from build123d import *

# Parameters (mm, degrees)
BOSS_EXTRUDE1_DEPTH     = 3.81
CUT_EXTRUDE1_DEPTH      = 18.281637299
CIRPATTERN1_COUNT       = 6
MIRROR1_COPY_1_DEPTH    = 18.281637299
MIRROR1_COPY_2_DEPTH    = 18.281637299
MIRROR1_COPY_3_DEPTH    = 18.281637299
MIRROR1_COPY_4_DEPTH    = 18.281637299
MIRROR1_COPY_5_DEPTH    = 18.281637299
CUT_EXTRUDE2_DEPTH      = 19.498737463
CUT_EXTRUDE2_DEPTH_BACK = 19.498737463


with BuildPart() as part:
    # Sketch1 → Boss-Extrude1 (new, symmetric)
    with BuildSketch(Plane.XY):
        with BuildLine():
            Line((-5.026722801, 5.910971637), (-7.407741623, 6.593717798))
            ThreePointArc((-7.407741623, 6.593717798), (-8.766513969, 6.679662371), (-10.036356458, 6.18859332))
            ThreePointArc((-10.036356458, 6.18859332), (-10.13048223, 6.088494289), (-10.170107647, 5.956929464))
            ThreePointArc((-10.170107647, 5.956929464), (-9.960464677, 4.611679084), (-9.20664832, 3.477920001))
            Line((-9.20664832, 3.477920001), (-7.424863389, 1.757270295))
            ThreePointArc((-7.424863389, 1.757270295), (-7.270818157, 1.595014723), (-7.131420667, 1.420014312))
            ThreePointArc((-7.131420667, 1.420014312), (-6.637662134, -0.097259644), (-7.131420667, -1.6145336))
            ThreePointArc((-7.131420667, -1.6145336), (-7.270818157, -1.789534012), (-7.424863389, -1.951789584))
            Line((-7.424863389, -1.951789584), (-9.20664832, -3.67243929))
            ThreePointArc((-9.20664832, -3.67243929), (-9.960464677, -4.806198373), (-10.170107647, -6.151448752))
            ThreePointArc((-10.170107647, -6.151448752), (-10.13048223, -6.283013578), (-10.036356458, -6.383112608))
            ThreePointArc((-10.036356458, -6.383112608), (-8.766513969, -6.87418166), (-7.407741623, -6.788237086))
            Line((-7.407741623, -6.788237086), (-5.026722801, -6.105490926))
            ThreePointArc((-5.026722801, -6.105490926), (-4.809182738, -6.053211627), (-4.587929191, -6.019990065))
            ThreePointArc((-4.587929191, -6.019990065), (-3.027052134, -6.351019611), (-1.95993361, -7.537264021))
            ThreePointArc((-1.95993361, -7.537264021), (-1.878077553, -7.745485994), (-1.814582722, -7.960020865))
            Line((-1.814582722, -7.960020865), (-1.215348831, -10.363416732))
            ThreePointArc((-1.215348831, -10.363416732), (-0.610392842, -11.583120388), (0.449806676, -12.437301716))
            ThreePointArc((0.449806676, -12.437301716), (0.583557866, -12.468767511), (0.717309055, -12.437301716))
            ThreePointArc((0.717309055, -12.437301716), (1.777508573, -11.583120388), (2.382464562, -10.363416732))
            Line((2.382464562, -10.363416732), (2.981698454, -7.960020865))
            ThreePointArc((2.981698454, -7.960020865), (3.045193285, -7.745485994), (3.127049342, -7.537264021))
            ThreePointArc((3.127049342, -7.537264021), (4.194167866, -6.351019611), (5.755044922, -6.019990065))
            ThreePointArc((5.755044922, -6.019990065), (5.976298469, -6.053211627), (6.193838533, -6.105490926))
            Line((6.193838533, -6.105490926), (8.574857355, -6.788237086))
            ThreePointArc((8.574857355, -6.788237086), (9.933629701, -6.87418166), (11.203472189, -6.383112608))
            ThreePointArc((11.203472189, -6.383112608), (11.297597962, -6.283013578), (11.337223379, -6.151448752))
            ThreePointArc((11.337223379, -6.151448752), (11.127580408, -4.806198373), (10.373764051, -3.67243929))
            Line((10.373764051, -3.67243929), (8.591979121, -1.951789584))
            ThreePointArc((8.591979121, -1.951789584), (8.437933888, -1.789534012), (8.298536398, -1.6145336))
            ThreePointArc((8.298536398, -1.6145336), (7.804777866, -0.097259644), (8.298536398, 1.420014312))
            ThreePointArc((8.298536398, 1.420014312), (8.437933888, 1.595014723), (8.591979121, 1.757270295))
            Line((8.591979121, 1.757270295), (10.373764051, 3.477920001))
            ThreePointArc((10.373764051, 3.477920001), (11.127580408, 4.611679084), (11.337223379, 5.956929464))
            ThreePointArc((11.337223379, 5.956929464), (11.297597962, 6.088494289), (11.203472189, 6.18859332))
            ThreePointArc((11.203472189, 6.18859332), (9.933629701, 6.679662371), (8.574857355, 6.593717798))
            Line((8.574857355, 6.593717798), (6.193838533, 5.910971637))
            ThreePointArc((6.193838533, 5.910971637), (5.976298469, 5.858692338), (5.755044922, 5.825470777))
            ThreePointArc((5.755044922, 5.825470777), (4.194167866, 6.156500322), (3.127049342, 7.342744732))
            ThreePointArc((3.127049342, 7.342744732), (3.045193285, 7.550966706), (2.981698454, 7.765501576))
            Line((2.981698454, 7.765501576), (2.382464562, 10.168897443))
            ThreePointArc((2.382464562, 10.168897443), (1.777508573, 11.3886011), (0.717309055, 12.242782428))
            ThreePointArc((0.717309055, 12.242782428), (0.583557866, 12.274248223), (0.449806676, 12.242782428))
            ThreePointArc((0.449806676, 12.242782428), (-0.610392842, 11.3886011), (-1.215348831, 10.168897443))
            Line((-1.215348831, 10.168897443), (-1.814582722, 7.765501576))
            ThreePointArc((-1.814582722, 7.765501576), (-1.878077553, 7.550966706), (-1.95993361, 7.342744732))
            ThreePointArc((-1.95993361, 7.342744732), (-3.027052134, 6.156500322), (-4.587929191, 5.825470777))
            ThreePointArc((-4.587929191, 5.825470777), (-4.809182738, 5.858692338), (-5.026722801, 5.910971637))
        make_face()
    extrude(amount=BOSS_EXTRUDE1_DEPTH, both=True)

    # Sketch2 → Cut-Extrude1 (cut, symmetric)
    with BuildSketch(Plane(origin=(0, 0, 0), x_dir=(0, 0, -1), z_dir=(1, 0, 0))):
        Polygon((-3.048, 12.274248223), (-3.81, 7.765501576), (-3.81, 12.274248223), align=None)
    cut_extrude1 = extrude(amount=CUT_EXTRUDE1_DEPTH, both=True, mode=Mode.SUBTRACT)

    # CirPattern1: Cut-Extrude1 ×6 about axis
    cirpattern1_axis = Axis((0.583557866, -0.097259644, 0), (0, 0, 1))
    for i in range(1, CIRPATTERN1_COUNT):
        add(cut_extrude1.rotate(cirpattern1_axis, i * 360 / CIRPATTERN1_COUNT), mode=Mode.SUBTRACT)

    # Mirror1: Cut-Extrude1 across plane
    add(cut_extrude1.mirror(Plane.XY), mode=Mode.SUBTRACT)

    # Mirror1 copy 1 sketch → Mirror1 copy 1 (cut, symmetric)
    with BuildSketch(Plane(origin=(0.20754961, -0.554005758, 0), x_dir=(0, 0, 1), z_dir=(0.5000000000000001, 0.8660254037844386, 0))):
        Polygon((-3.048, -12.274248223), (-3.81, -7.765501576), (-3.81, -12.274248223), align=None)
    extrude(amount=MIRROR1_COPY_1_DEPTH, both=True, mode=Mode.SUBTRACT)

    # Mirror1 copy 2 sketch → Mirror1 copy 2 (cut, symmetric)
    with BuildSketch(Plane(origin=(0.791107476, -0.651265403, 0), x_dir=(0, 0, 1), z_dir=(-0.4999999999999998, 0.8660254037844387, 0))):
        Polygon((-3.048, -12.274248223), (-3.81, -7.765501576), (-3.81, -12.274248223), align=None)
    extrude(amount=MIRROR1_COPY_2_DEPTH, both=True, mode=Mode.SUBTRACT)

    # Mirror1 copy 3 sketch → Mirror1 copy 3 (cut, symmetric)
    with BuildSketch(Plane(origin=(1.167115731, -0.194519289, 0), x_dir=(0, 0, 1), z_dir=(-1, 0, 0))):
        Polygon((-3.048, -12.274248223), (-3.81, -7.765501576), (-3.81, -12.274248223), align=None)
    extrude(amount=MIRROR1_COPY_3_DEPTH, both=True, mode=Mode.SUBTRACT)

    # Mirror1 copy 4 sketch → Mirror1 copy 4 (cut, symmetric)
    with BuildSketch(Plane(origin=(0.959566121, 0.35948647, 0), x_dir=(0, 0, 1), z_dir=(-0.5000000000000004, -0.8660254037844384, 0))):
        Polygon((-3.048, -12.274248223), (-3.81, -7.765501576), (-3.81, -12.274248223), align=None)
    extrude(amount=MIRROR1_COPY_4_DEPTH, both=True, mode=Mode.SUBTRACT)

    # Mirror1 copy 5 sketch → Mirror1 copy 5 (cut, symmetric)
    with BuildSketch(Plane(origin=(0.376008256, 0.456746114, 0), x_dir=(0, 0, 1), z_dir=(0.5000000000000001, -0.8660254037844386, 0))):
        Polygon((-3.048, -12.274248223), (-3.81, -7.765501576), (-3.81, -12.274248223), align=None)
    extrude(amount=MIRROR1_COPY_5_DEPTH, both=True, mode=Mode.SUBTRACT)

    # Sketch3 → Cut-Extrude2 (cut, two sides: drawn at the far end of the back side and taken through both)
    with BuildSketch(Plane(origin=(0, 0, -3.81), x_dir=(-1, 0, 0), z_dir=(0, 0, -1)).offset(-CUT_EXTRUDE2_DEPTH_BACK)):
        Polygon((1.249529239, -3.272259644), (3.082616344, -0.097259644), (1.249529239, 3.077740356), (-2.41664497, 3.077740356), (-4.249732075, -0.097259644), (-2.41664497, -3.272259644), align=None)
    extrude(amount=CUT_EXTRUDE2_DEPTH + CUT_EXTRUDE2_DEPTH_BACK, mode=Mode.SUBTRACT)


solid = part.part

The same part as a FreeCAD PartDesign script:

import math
import FreeCAD as App
import Part
import Sketcher
from FreeCAD import Vector
Q = App.Units.Quantity


def add_polygon(sketch, points):
    """Adds a closed chain of lines whose ends are joined by coincident constraints."""
    first, n = sketch.GeometryCount, len(points)
    for a, b in zip(points, points[1:] + points[:1]):
        sketch.addGeometry(Part.LineSegment(App.Vector(*a, 0), App.Vector(*b, 0)), False)
    for i in range(n):
        sketch.addConstraint(Sketcher.Constraint("Coincident", first + i, 2, first + (i + 1) % n, 1))

doc = App.newDocument("Part")
params = doc.addObject("Spreadsheet::Sheet", "Params")
for row, (alias, value) in enumerate([
    ("sketch1_radius", "0.125 in"),
    ("pad1_length", "0.3 in"),
    ("sketch2_height", "0.03 in"),
    ("pocket1_length", "36.563275 mm"),
    ("sketch3_width", "0.03 in"),
    ("pocket2_length", "36.563275 mm"),
    ("sketch4_width", "0.03 in"),
    ("pocket3_length", "36.563275 mm"),
    ("sketch5_height", "0.03 in"),
    ("pocket4_length", "36.563275 mm"),
    ("sketch6_width", "0.03 in"),
    ("pocket5_length", "36.563275 mm"),
    ("sketch7_width", "0.03 in"),
    ("pocket6_length", "36.563275 mm"),
], start=1):
    params.set(f"A{row}", alias)
    params.set(f"B{row}", "=" + value)
    params.setAlias(f"B{row}", alias)

body = doc.addObject("PartDesign::Body", "Body")

# Sketch on XY plane
sketch1 = body.newObject("Sketcher::SketchObject", "Sketch")
sketch1.AttachmentSupport = (doc.getObject("XY_Plane"), [""])
sketch1.MapMode = "FlatFace"
sketch1.addGeometry(Part.LineSegment(Vector(-5.03, 5.91, 0), Vector(-7.41, 6.59, 0)), False)
sketch1.addGeometry(Part.ArcOfCircle(Part.Circle(Vector(-8.28, 3.54, 0), Vector(0, 0, 1), 3.18), math.radians(74), math.radians(124)), False)
sketch1.addGeometry(Part.ArcOfCircle(Part.Circle(Vector(-9.87, 5.94, 0), Vector(0, 0, 1), 0.3), math.radians(124), math.radians(176)), False)
sketch1.addGeometry(Part.ArcOfCircle(Part.Circle(Vector(-7, 5.76, 0), Vector(0, 0, 1), 3.17), math.radians(176), math.radians(226)), False)
sketch1.addGeometry(Part.LineSegment(Vector(-9.21, 3.48, 0), Vector(-7.42, 1.76, 0)), False)
sketch1.addGeometry(Part.ArcOfCircle(Part.Circle(Vector(-9.22, -0.1, 0), Vector(0, 0, 1), 2.58), math.radians(36.05), math.radians(46)), False)
sketch1.addGeometry(Part.ArcOfCircle(Part.Circle(Vector(-9.22, -0.1, 0), Vector(0, 0, 1), 2.58), math.radians(-36), math.radians(36)), False)
sketch1.addGeometry(Part.ArcOfCircle(Part.Circle(Vector(-9.22, -0.1, 0), Vector(0, 0, 1), 2.58), math.radians(-46), math.radians(-36.05)), False)
sketch1.addGeometry(Part.LineSegment(Vector(-7.42, -1.95, 0), Vector(-9.21, -3.67, 0)), False)
sketch1.addGeometry(Part.ArcOfCircle(Part.Circle(Vector(-7, -5.96, 0), Vector(0, 0, 1), 3.17), math.radians(134), math.radians(184)), False)
sketch1.addGeometry(Part.ArcOfCircle(Part.Circle(Vector(-9.87, -6.13, 0), Vector(0, 0, 1), 0.3), math.radians(-176), math.radians(-124)), False)
sketch1.addGeometry(Part.ArcOfCircle(Part.Circle(Vector(-8.28, -3.74, 0), Vector(0, 0, 1), 3.17), math.radians(-124), math.radians(-74)), False)
sketch1.addGeometry(Part.LineSegment(Vector(-7.41, -6.79, 0), Vector(-5.03, -6.11, 0)), False)
sketch1.addGeometry(Part.ArcOfCircle(Part.Circle(Vector(-4.32, -8.58, 0), Vector(0, 0, 1), 2.58), math.radians(96.05), math.radians(106)), False)
sketch1.addGeometry(Part.ArcOfCircle(Part.Circle(Vector(-4.32, -8.58, 0), Vector(0, 0, 1), 2.58), math.radians(24), math.radians(96)), False)
sketch1.addGeometry(Part.ArcOfCircle(Part.Circle(Vector(-4.32, -8.58, 0), Vector(0, 0, 1), 2.58), math.radians(14), math.radians(23.95)), False)
sketch1.addGeometry(Part.LineSegment(Vector(-1.81, -7.96, 0), Vector(-1.22, -10.36, 0)), False)
sketch1.addGeometry(Part.ArcOfCircle(Part.Circle(Vector(1.87, -9.6, 0), Vector(0, 0, 1), 3.17), math.radians(-166), math.radians(-116)), False)
sketch1.addGeometry(Part.ArcOfCircle(Part.Circle(Vector(0.58, -12.17, 0), Vector(0, 0, 1), 0.3), math.radians(-116), math.radians(-64)), False)
sketch1.addGeometry(Part.ArcOfCircle(Part.Circle(Vector(-0.7, -9.6, 0), Vector(0, 0, 1), 3.17), math.radians(-64), math.radians(-14)), False)
sketch1.addGeometry(Part.LineSegment(Vector(2.38, -10.36, 0), Vector(2.98, -7.96, 0)), False)
sketch1.addGeometry(Part.ArcOfCircle(Part.Circle(Vector(5.48, -8.58, 0), Vector(0, 0, 1), 2.58), math.radians(156.05), math.radians(166)), False)
sketch1.addGeometry(Part.ArcOfCircle(Part.Circle(Vector(5.48, -8.58, 0), Vector(0, 0, 1), 2.58), math.radians(84), math.radians(156)), False)
sketch1.addGeometry(Part.ArcOfCircle(Part.Circle(Vector(5.48, -8.58, 0), Vector(0, 0, 1), 2.58), math.radians(74), math.radians(83.95)), False)
sketch1.addGeometry(Part.LineSegment(Vector(6.19, -6.11, 0), Vector(8.57, -6.79, 0)), False)
sketch1.addGeometry(Part.ArcOfCircle(Part.Circle(Vector(9.45, -3.74, 0), Vector(0, 0, 1), 3.17), math.radians(-106), math.radians(-56)), False)
sketch1.addGeometry(Part.ArcOfCircle(Part.Circle(Vector(11.04, -6.13, 0), Vector(0, 0, 1), 0.3), math.radians(-56), math.radians(-4)), False)
sketch1.addGeometry(Part.ArcOfCircle(Part.Circle(Vector(8.17, -5.96, 0), Vector(0, 0, 1), 3.18), math.radians(-4), math.radians(46)), False)
sketch1.addGeometry(Part.LineSegment(Vector(10.37, -3.67, 0), Vector(8.59, -1.95, 0)), False)
sketch1.addGeometry(Part.ArcOfCircle(Part.Circle(Vector(10.38, -0.1, 0), Vector(0, 0, 1), 2.58), math.radians(-143.95), math.radians(-134)), False)
sketch1.addGeometry(Part.ArcOfCircle(Part.Circle(Vector(10.38, -0.1, 0), Vector(0, 0, 1), 2.58), math.radians(144), math.radians(216)), False)
sketch1.addGeometry(Part.ArcOfCircle(Part.Circle(Vector(10.38, -0.1, 0), Vector(0, 0, 1), 2.58), math.radians(134), math.radians(143.95)), False)
sketch1.addGeometry(Part.LineSegment(Vector(8.59, 1.76, 0), Vector(10.37, 3.48, 0)), False)
sketch1.addGeometry(Part.ArcOfCircle(Part.Circle(Vector(8.17, 5.76, 0), Vector(0, 0, 1), 3.18), math.radians(-46), math.radians(4)), False)
sketch1.addGeometry(Part.ArcOfCircle(Part.Circle(Vector(11.04, 5.94, 0), Vector(0, 0, 1), 0.3), math.radians(4), math.radians(56)), False)
sketch1.addGeometry(Part.ArcOfCircle(Part.Circle(Vector(9.45, 3.54, 0), Vector(0, 0, 1), 3.18), math.radians(56), math.radians(106)), False)
sketch1.addGeometry(Part.LineSegment(Vector(8.57, 6.59, 0), Vector(6.19, 5.91, 0)), False)
sketch1.addGeometry(Part.ArcOfCircle(Part.Circle(Vector(5.48, 8.39, 0), Vector(0, 0, 1), 2.58), math.radians(-83.95), math.radians(-74)), False)
sketch1.addGeometry(Part.ArcOfCircle(Part.Circle(Vector(5.48, 8.39, 0), Vector(0, 0, 1), 2.58), math.radians(-156), math.radians(-84)), False)
sketch1.addGeometry(Part.ArcOfCircle(Part.Circle(Vector(5.48, 8.39, 0), Vector(0, 0, 1), 2.58), math.radians(-166), math.radians(-156.05)), False)
sketch1.addGeometry(Part.LineSegment(Vector(2.98, 7.77, 0), Vector(2.38, 10.17, 0)), False)
sketch1.addGeometry(Part.ArcOfCircle(Part.Circle(Vector(-0.7, 9.4, 0), Vector(0, 0, 1), 3.17), math.radians(14), math.radians(64)), False)
sketch1.addGeometry(Part.ArcOfCircle(Part.Circle(Vector(0.58, 11.97, 0), Vector(0, 0, 1), 0.3), math.radians(64), math.radians(116)), False)
sketch1.addGeometry(Part.ArcOfCircle(Part.Circle(Vector(1.87, 9.4, 0), Vector(0, 0, 1), 3.17), math.radians(116), math.radians(166)), False)
sketch1.addGeometry(Part.LineSegment(Vector(-1.22, 10.17, 0), Vector(-1.81, 7.77, 0)), False)
sketch1.addGeometry(Part.ArcOfCircle(Part.Circle(Vector(-4.32, 8.39, 0), Vector(0, 0, 1), 2.58), math.radians(-23.95), math.radians(-14)), False)
sketch1.addGeometry(Part.ArcOfCircle(Part.Circle(Vector(-4.32, 8.39, 0), Vector(0, 0, 1), 2.58), math.radians(-96), math.radians(-24)), False)
sketch1.addGeometry(Part.ArcOfCircle(Part.Circle(Vector(-4.32, 8.39, 0), Vector(0, 0, 1), 2.58), math.radians(-106), math.radians(-96.05)), False)
sketch1.addConstraint(Sketcher.Constraint("Tangent", 0, 2, 1, 1))
sketch1.addConstraint(Sketcher.Constraint("Tangent", 1, 2, 2, 1))
sketch1.addConstraint(Sketcher.Constraint("Tangent", 2, 2, 3, 1))
sketch1.addConstraint(Sketcher.Constraint("Tangent", 3, 2, 4, 1))
sketch1.addConstraint(Sketcher.Constraint("Tangent", 4, 2, 5, 2))
sketch1.addConstraint(Sketcher.Constraint("Tangent", 5, 1, 6, 2))
sketch1.addConstraint(Sketcher.Constraint("Tangent", 6, 1, 7, 2))
sketch1.addConstraint(Sketcher.Constraint("Tangent", 7, 1, 8, 1))
sketch1.addConstraint(Sketcher.Constraint("Tangent", 8, 2, 9, 1))
sketch1.addConstraint(Sketcher.Constraint("Tangent", 9, 2, 10, 1))
sketch1.addConstraint(Sketcher.Constraint("Tangent", 10, 2, 11, 1))
sketch1.addConstraint(Sketcher.Constraint("Tangent", 11, 2, 12, 1))
sketch1.addConstraint(Sketcher.Constraint("Tangent", 12, 2, 13, 2))
sketch1.addConstraint(Sketcher.Constraint("Tangent", 13, 1, 14, 2))
sketch1.addConstraint(Sketcher.Constraint("Tangent", 14, 1, 15, 2))
sketch1.addConstraint(Sketcher.Constraint("Tangent", 15, 1, 16, 1))
sketch1.addConstraint(Sketcher.Constraint("Tangent", 16, 2, 17, 1))
sketch1.addConstraint(Sketcher.Constraint("Tangent", 17, 2, 18, 1))
sketch1.addConstraint(Sketcher.Constraint("Tangent", 18, 2, 19, 1))
sketch1.addConstraint(Sketcher.Constraint("Tangent", 19, 2, 20, 1))
sketch1.addConstraint(Sketcher.Constraint("Tangent", 20, 2, 21, 2))
sketch1.addConstraint(Sketcher.Constraint("Tangent", 21, 1, 22, 2))
sketch1.addConstraint(Sketcher.Constraint("Tangent", 22, 1, 23, 2))
sketch1.addConstraint(Sketcher.Constraint("Tangent", 23, 1, 24, 1))
sketch1.addConstraint(Sketcher.Constraint("Tangent", 24, 2, 25, 1))
sketch1.addConstraint(Sketcher.Constraint("Tangent", 25, 2, 26, 1))
sketch1.addConstraint(Sketcher.Constraint("Tangent", 26, 2, 27, 1))
sketch1.addConstraint(Sketcher.Constraint("Tangent", 27, 2, 28, 1))
sketch1.addConstraint(Sketcher.Constraint("Tangent", 28, 2, 29, 2))
sketch1.addConstraint(Sketcher.Constraint("Tangent", 29, 1, 30, 2))
sketch1.addConstraint(Sketcher.Constraint("Tangent", 30, 1, 31, 2))
sketch1.addConstraint(Sketcher.Constraint("Tangent", 31, 1, 32, 1))
sketch1.addConstraint(Sketcher.Constraint("Tangent", 32, 2, 33, 1))
sketch1.addConstraint(Sketcher.Constraint("Tangent", 33, 2, 34, 1))
sketch1.addConstraint(Sketcher.Constraint("Tangent", 34, 2, 35, 1))
sketch1.addConstraint(Sketcher.Constraint("Tangent", 35, 2, 36, 1))
sketch1.addConstraint(Sketcher.Constraint("Tangent", 36, 2, 37, 2))
sketch1.addConstraint(Sketcher.Constraint("Tangent", 37, 1, 38, 2))
sketch1.addConstraint(Sketcher.Constraint("Tangent", 38, 1, 39, 2))
sketch1.addConstraint(Sketcher.Constraint("Tangent", 39, 1, 40, 1))
sketch1.addConstraint(Sketcher.Constraint("Tangent", 40, 2, 41, 1))
sketch1.addConstraint(Sketcher.Constraint("Tangent", 41, 2, 42, 1))
sketch1.addConstraint(Sketcher.Constraint("Tangent", 42, 2, 43, 1))
sketch1.addConstraint(Sketcher.Constraint("Tangent", 43, 2, 44, 1))
sketch1.addConstraint(Sketcher.Constraint("Tangent", 44, 2, 45, 2))
sketch1.addConstraint(Sketcher.Constraint("Tangent", 45, 1, 46, 2))
sketch1.addConstraint(Sketcher.Constraint("Tangent", 46, 1, 47, 2))
sketch1.addConstraint(Sketcher.Constraint("Tangent", 47, 1, 0, 1))
sketch1.addConstraint(Sketcher.Constraint("Coincident", 7, 3, 5, 3))
sketch1.addConstraint(Sketcher.Constraint("Coincident", 15, 3, 13, 3))
sketch1.addConstraint(Sketcher.Constraint("Coincident", 23, 3, 21, 3))
sketch1.addConstraint(Sketcher.Constraint("Coincident", 31, 3, 29, 3))
sketch1.addConstraint(Sketcher.Constraint("Coincident", 39, 3, 37, 3))
sketch1.addConstraint(Sketcher.Constraint("Coincident", 47, 3, 45, 3))
sketch1.addConstraint(Sketcher.Constraint("Equal", 1, 3))
sketch1.addConstraint(Sketcher.Constraint("Equal", 3, 9))
sketch1.addConstraint(Sketcher.Constraint("Equal", 2, 10))
sketch1.addConstraint(Sketcher.Constraint("Equal", 9, 11))
sketch1.addConstraint(Sketcher.Constraint("Equal", 7, 13))
sketch1.addConstraint(Sketcher.Constraint("Equal", 11, 17))
sketch1.addConstraint(Sketcher.Constraint("Equal", 10, 18))
sketch1.addConstraint(Sketcher.Constraint("Equal", 17, 19))
sketch1.addConstraint(Sketcher.Constraint("Equal", 15, 21))
sketch1.addConstraint(Sketcher.Constraint("Equal", 19, 25))
sketch1.addConstraint(Sketcher.Constraint("Equal", 18, 26))
sketch1.addConstraint(Sketcher.Constraint("Equal", 25, 27))
sketch1.addConstraint(Sketcher.Constraint("Equal", 23, 29))
sketch1.addConstraint(Sketcher.Constraint("Equal", 27, 33))
sketch1.addConstraint(Sketcher.Constraint("Equal", 26, 34))
sketch1.addConstraint(Sketcher.Constraint("Equal", 33, 35))
sketch1.addConstraint(Sketcher.Constraint("Equal", 31, 37))
sketch1.addConstraint(Sketcher.Constraint("Equal", 35, 41))
sketch1.addConstraint(Sketcher.Constraint("Equal", 34, 42))
sketch1.addConstraint(Sketcher.Constraint("Equal", 41, 43))
sketch1.addConstraint(Sketcher.Constraint("Equal", 39, 45))
sketch1.addConstraint(Sketcher.Constraint("Parallel", 0, 24))
sketch1.addConstraint(Sketcher.Constraint("Parallel", 4, 28))
sketch1.addConstraint(Sketcher.Constraint("Parallel", 8, 32))
sketch1.addConstraint(Sketcher.Constraint("Parallel", 12, 36))
sketch1.addConstraint(Sketcher.Constraint("Parallel", 16, 40))
sketch1.addConstraint(Sketcher.Constraint("Parallel", 20, 44))
sketch1.addConstraint(Sketcher.Constraint("Horizontal", 17, 3, 19, 3))
sketch1.addConstraint(Sketcher.Constraint("Horizontal", 15, 3, 21, 3))
sketch1.addConstraint(Sketcher.Constraint("Horizontal", 11, 3, 25, 3))
sketch1.addConstraint(Sketcher.Constraint("Horizontal", 10, 3, 26, 3))
sketch1.addConstraint(Sketcher.Constraint("Horizontal", 9, 3, 27, 3))
sketch1.addConstraint(Sketcher.Constraint("Horizontal", 7, 3, 29, 3))
sketch1.addConstraint(Sketcher.Constraint("Horizontal", 3, 3, 33, 3))
sketch1.addConstraint(Sketcher.Constraint("Horizontal", 2, 3, 34, 3))
sketch1.addConstraint(Sketcher.Constraint("Horizontal", 1, 3, 35, 3))
sketch1.addConstraint(Sketcher.Constraint("Horizontal", 41, 3, 43, 3))
sketch1.addConstraint(Sketcher.Constraint("Horizontal", 39, 3, 45, 3))
sketch1.addConstraint(Sketcher.Constraint("Horizontal", 16, 2, 19, 2))
sketch1.addConstraint(Sketcher.Constraint("Horizontal", 14, 1, 21, 1))
sketch1.addConstraint(Sketcher.Constraint("Horizontal", 13, 1, 22, 1))
sketch1.addConstraint(Sketcher.Constraint("Horizontal", 12, 2, 23, 1))
sketch1.addConstraint(Sketcher.Constraint("Horizontal", 8, 2, 27, 2))
sketch1.addConstraint(Sketcher.Constraint("Horizontal", 6, 1, 29, 1))
sketch1.addConstraint(Sketcher.Constraint("Horizontal", 5, 1, 30, 1))
sketch1.addConstraint(Sketcher.Constraint("Horizontal", 38, 1, 45, 1))
sketch1.addConstraint(Sketcher.Constraint("Horizontal", 37, 1, 46, 1))
sketch1.addConstraint(Sketcher.Constraint("Vertical", 3, 3, 9, 3))
sketch1.addConstraint(Sketcher.Constraint("Vertical", 2, 3, 10, 3))
sketch1.addConstraint(Sketcher.Constraint("Vertical", 1, 3, 11, 3))
sketch1.addConstraint(Sketcher.Constraint("Vertical", 23, 3, 37, 3))
sketch1.addConstraint(Sketcher.Constraint("Vertical", 19, 3, 41, 3))
sketch1.addConstraint(Sketcher.Constraint("Vertical", 5, 1, 6, 1))
sketch1.addConstraint(Sketcher.Constraint("Vertical", 22, 1, 37, 1))
sketch1.addConstraint(Sketcher.Constraint("Vertical", 21, 1, 38, 1))
sketch1.addConstraint(Sketcher.Constraint("Equal", 0, 4))
sketch1.addConstraint(Sketcher.Constraint("Equal", 12, 16))
sketch1.addConstraint(Sketcher.Constraint("Angle", 0, Q("164 deg")))
sketch1.addConstraint(Sketcher.Constraint("Angle", 4, Q("-44 deg")))
sketch1.addConstraint(Sketcher.Constraint("Angle", 16, Q("-76 deg")))
sketch1.addConstraint(Sketcher.Constraint("Radius", 1, Q("0.125 in")))
sketch1.addConstraint(Sketcher.Constraint("Radius", 5, Q("0.1015 in")))
sketch1.addConstraint(Sketcher.Constraint("Radius", 2, 0.3))
sketch1.addConstraint(Sketcher.Constraint("DistanceY", -1, 1, 37, 3, 8.3892))
sketch1.addConstraint(Sketcher.Constraint("DistanceY", 17, 2, -1, 1, 12.437302))
sketch1.addConstraint(Sketcher.Constraint("DistanceX", -1, 1, 20, 2, 2.981698))
sketch1.addConstraint(Sketcher.Constraint("DistanceX", 1, 3, -1, 1, 8.28289))
sketch1.addConstraint(Sketcher.Constraint("DistanceY", -1, 1, 1, 3, 3.541712))
sketch1.addConstraint(Sketcher.Constraint("DistanceX", -1, 1, 26, 3, 11.03779))
sketch1.addConstraint(Sketcher.Constraint("DistanceX", 5, 1, -1, 1, 7.131421))
sketch1.addConstraint(Sketcher.Constraint("DistanceX", 13, 1, -1, 1, 4.587929))
sketch1.addConstraint(Sketcher.Constraint("DistanceX", -1, 1, 21, 1, 3.127049))
sketch1.setExpression("Constraints[114]", "Params.sketch1_radius")
pad1 = body.newObject("PartDesign::Pad", "Pad")
pad1.Profile = sketch1
pad1.setExpression("Length", "Params.pad1_length")
pad1.Midplane = True

# Sketch on YZ plane
sketch2 = body.newObject("Sketcher::SketchObject", "Sketch001")
sketch2.AttachmentSupport = (doc.getObject("YZ_Plane"), [""])
sketch2.MapMode = "FlatFace"
add_polygon(sketch2, [(7.8, 3.8), (12.3, 3), (12.3, 3.8)])  # lines 0-2
sketch2.addConstraint(Sketcher.Constraint("Vertical", 1))
sketch2.addConstraint(Sketcher.Constraint("Horizontal", 2))
sketch2.addConstraint(Sketcher.Constraint("DistanceY", 1, 1, 1, 2, Q("0.03 in")))
sketch2.addConstraint(Sketcher.Constraint("DistanceY", -1, 1, 0, 2, Q("0.12 in")))
sketch2.addConstraint(Sketcher.Constraint("DistanceX", -1, 1, 2, 2, 7.765502))
sketch2.addConstraint(Sketcher.Constraint("DistanceX", 2, 2, 2, 1, 4.508747))
sketch2.setExpression("Constraints[5]", "Params.sketch2_height")
pocket1 = body.newObject("PartDesign::Pocket", "Pocket")
pocket1.Profile = sketch2
pocket1.setExpression("Length", "Params.pocket1_length")
pocket1.Midplane = True
doc.recompute()

datumline = body.newObject("PartDesign::Line", "DatumLine")
datumline.Placement = App.Placement(Vector(0.583558, -0.09726, 0), App.Rotation(Vector(0, 0, 1), Vector(0, 0, 1)))
polarpattern = body.newObject("PartDesign::PolarPattern", "PolarPattern")
polarpattern.Originals = [pocket1]
polarpattern.Axis = (datumline, [""])
polarpattern.Angle = 360
polarpattern.Occurrences = 6
body.Tip = polarpattern
doc.recompute()

mirrored = body.newObject("PartDesign::Mirrored", "Mirrored")
mirrored.Originals = [pocket1]
mirrored.MirrorPlane = (doc.getObject("XY_Plane"), [""])
body.Tip = mirrored

# Sketch on an angled plane
sketch3 = body.newObject("Sketcher::SketchObject", "Sketch002")
sketch3.Placement = App.Placement(Vector(0.20755, -0.554006, 0), App.Rotation(Vector(0, 0, 1), Vector(0.866025404, -0.5, 0), Vector(0.5, 0.866025404, 0), "ZXY"))
add_polygon(sketch3, [(-3, -12.3), (-3.8, -7.8), (-3.8, -12.3)])  # lines 0-2
sketch3.addConstraint(Sketcher.Constraint("Vertical", 1))
sketch3.addConstraint(Sketcher.Constraint("Horizontal", 2))
sketch3.addConstraint(Sketcher.Constraint("DistanceX", 2, 1, 2, 2, Q("0.03 in")))
sketch3.addConstraint(Sketcher.Constraint("DistanceX", 0, 2, -1, 1, Q("0.15 in")))
sketch3.addConstraint(Sketcher.Constraint("DistanceY", 0, 2, -1, 1, 7.765502))
sketch3.addConstraint(Sketcher.Constraint("DistanceY", 1, 2, 1, 1, 4.508747))
sketch3.setExpression("Constraints[5]", "Params.sketch3_width")
pocket2 = body.newObject("PartDesign::Pocket", "Pocket001")
pocket2.Profile = sketch3
pocket2.setExpression("Length", "Params.pocket2_length")
pocket2.Midplane = True

# Sketch on an angled plane
sketch4 = body.newObject("Sketcher::SketchObject", "Sketch003")
sketch4.Placement = App.Placement(Vector(0.791107, -0.651265, 0), App.Rotation(Vector(0, 0, 1), Vector(0.866025404, 0.5, 0), Vector(-0.5, 0.866025404, 0), "ZXY"))
add_polygon(sketch4, [(-3, -12.3), (-3.8, -7.8), (-3.8, -12.3)])  # lines 0-2
sketch4.addConstraint(Sketcher.Constraint("Vertical", 1))
sketch4.addConstraint(Sketcher.Constraint("Horizontal", 2))
sketch4.addConstraint(Sketcher.Constraint("DistanceX", 2, 1, 2, 2, Q("0.03 in")))
sketch4.addConstraint(Sketcher.Constraint("DistanceX", 0, 2, -1, 1, Q("0.15 in")))
sketch4.addConstraint(Sketcher.Constraint("DistanceY", 0, 2, -1, 1, 7.765502))
sketch4.addConstraint(Sketcher.Constraint("DistanceY", 1, 2, 1, 1, 4.508747))
sketch4.setExpression("Constraints[5]", "Params.sketch4_width")
pocket3 = body.newObject("PartDesign::Pocket", "Pocket002")
pocket3.Profile = sketch4
pocket3.setExpression("Length", "Params.pocket3_length")
pocket3.Midplane = True

# Sketch on YZ plane
sketch5 = body.newObject("Sketcher::SketchObject", "Sketch004")
sketch5.AttachmentSupport = (doc.getObject("YZ_Plane"), [""])
sketch5.MapMode = "FlatFace"
sketch5.AttachmentOffset = App.Placement(Vector(0, 0, 1.167116), App.Rotation())
add_polygon(sketch5, [(-12.5, -3), (-8, -3.8), (-12.5, -3.8)])  # lines 0-2
sketch5.addConstraint(Sketcher.Constraint("Horizontal", 1))
sketch5.addConstraint(Sketcher.Constraint("Vertical", 2))
sketch5.addConstraint(Sketcher.Constraint("DistanceY", 2, 1, 2, 2, Q("0.03 in")))
sketch5.addConstraint(Sketcher.Constraint("DistanceY", 0, 2, -1, 1, Q("0.15 in")))
sketch5.addConstraint(Sketcher.Constraint("DistanceX", 1, 2, 1, 1, 4.508747))
sketch5.addConstraint(Sketcher.Constraint("DistanceX", 0, 2, -1, 1, 7.960021))
sketch5.setExpression("Constraints[5]", "Params.sketch5_height")
pocket4 = body.newObject("PartDesign::Pocket", "Pocket003")
pocket4.Profile = sketch5
pocket4.setExpression("Length", "Params.pocket4_length")
pocket4.Midplane = True

# Sketch on an angled plane
sketch6 = body.newObject("Sketcher::SketchObject", "Sketch005")
sketch6.Placement = App.Placement(Vector(0.959566, 0.359486, 0), App.Rotation(Vector(0, 0, 1), Vector(-0.866025404, 0.5, 0), Vector(-0.5, -0.866025404, 0), "ZXY"))
add_polygon(sketch6, [(-3, -12.3), (-3.8, -7.8), (-3.8, -12.3)])  # lines 0-2
sketch6.addConstraint(Sketcher.Constraint("Vertical", 1))
sketch6.addConstraint(Sketcher.Constraint("Horizontal", 2))
sketch6.addConstraint(Sketcher.Constraint("DistanceX", 2, 1, 2, 2, Q("0.03 in")))
sketch6.addConstraint(Sketcher.Constraint("DistanceX", 0, 2, -1, 1, Q("0.15 in")))
sketch6.addConstraint(Sketcher.Constraint("DistanceY", 0, 2, -1, 1, 7.765502))
sketch6.addConstraint(Sketcher.Constraint("DistanceY", 1, 2, 1, 1, 4.508747))
sketch6.setExpression("Constraints[5]", "Params.sketch6_width")
pocket5 = body.newObject("PartDesign::Pocket", "Pocket004")
pocket5.Profile = sketch6
pocket5.setExpression("Length", "Params.pocket5_length")
pocket5.Midplane = True

# Sketch on an angled plane
sketch7 = body.newObject("Sketcher::SketchObject", "Sketch006")
sketch7.Placement = App.Placement(Vector(0.376008, 0.456746, 0), App.Rotation(Vector(0, 0, 1), Vector(-0.866025404, -0.5, 0), Vector(0.5, -0.866025404, 0), "ZXY"))
add_polygon(sketch7, [(-3, -12.3), (-3.8, -7.8), (-3.8, -12.3)])  # lines 0-2
sketch7.addConstraint(Sketcher.Constraint("Vertical", 1))
sketch7.addConstraint(Sketcher.Constraint("Horizontal", 2))
sketch7.addConstraint(Sketcher.Constraint("DistanceX", 2, 1, 2, 2, Q("0.03 in")))
sketch7.addConstraint(Sketcher.Constraint("DistanceX", 0, 2, -1, 1, Q("0.15 in")))
sketch7.addConstraint(Sketcher.Constraint("DistanceY", 0, 2, -1, 1, 7.765502))
sketch7.addConstraint(Sketcher.Constraint("DistanceY", 1, 2, 1, 1, 4.508747))
sketch7.setExpression("Constraints[5]", "Params.sketch7_width")
pocket6 = body.newObject("PartDesign::Pocket", "Pocket005")
pocket6.Profile = sketch7
pocket6.setExpression("Length", "Params.pocket6_length")
pocket6.Midplane = True

# Sketch on XY plane
sketch8 = body.newObject("Sketcher::SketchObject", "Sketch007")
sketch8.AttachmentSupport = (doc.getObject("XY_Plane"), [""])
sketch8.MapMode = "FlatFace"
sketch8.AttachmentOffset = App.Placement(Vector(0, 0, -0.15 * 25.4), App.Rotation())
add_polygon(sketch8, [(-1.2, -3.3), (-3.1, -0.1), (-1.2, 3.1), (2.4, 3.1), (4.2, -0.1), (2.4, -3.3)])  # lines 0-5
sketch8.addConstraint(Sketcher.Constraint("Horizontal", 2))
sketch8.addConstraint(Sketcher.Constraint("Horizontal", 5))
sketch8.addConstraint(Sketcher.Constraint("Parallel", 0, 3))
sketch8.addConstraint(Sketcher.Constraint("Parallel", 1, 4))
sketch8.addConstraint(Sketcher.Constraint("Horizontal", 0, 2, 3, 2))
sketch8.addConstraint(Sketcher.Constraint("Vertical", 2, 2, 4, 2))
sketch8.addConstraint(Sketcher.Constraint("Vertical", 1, 2, 5, 2))
sketch8.addConstraint(Sketcher.Constraint("Angle", 0, Q("120 deg")))
sketch8.addConstraint(Sketcher.Constraint("DistanceY", 4, 2, 2, 2, Q("0.25 in")))
sketch8.addConstraint(Sketcher.Constraint("DistanceX", 2, 1, 2, 2, 3.666174))
sketch8.addConstraint(Sketcher.Constraint("DistanceY", 0, 2, -1, 1, 0.09726))
sketch8.addConstraint(Sketcher.Constraint("DistanceX", 1, 2, -1, 1, 1.249529))
pocket7 = body.newObject("PartDesign::Pocket", "Pocket006")
pocket7.Profile = sketch8
pocket7.Type = "ThroughAll"
pocket7.Midplane = True

doc.recompute()
